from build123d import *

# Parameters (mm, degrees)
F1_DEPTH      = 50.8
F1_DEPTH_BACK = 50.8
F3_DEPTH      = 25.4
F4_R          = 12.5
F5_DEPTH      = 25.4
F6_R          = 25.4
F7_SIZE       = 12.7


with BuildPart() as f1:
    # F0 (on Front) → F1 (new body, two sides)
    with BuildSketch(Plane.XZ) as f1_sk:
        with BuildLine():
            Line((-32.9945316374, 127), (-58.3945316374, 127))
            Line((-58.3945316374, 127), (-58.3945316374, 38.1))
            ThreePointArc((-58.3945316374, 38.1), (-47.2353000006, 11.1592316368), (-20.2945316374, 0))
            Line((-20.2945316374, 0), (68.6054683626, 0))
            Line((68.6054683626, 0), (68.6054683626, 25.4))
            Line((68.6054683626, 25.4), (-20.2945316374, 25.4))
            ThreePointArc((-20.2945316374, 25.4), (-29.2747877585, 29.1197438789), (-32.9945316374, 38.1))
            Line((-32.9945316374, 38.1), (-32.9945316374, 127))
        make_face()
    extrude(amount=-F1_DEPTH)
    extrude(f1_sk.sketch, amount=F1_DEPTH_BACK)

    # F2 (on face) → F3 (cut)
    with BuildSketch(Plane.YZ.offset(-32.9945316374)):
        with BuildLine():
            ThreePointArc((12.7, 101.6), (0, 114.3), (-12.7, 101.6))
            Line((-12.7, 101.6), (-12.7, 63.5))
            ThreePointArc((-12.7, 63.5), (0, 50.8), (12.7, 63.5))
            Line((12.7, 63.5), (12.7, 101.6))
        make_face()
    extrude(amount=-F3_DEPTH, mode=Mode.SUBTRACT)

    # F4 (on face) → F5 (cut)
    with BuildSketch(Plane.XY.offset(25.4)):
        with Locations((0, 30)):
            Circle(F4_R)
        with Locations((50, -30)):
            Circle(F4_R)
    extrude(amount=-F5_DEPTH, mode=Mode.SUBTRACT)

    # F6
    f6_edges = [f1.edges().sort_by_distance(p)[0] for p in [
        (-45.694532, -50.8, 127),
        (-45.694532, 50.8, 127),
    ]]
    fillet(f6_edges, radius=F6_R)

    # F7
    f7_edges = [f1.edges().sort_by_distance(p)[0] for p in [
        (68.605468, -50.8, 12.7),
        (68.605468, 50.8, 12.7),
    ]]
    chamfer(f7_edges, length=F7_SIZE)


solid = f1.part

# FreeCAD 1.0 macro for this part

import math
import FreeCAD as App
import Part
import Sketcher
from FreeCAD import Vector
Q = App.Units.Quantity


def edges_at(feature, points):
    """Names of the edges that pass closest to the given points."""
    edges = feature.Shape.Edges
    near = lambda p: min(range(len(edges)), key=lambda i: edges[i].distToShape(Part.Vertex(*p))[0])
    return sorted({f"Edge{near(p) + 1}" for p in points})

doc = App.newDocument("Part")
params = doc.addObject("Spreadsheet::Sheet", "Params")
for row, (alias, value) in enumerate([
    ("sketch1_radius", "1.5 in"),
    ("sketch1_radius2", "0.5 in"),
    ("sketch1_width", "3.5 in"),
    ("pad1_length", "2 in"),
    ("pad1_length2", "2 in"),
    ("sketch2_radius", "0.5 in"),
    ("sketch2_height", "1.5 in"),
    ("pocket1_length", "1 in"),
    ("pocket2_length", "1 in"),
    ("fillet_radius", "1 in"),
    ("chamfer_size", "0.5 in"),
], start=1):
    params.set(f"A{row}", alias)
    params.set(f"B{row}", "=" + value)
    params.setAlias(f"B{row}", alias)

body = doc.addObject("PartDesign::Body", "Body")

# Sketch on XZ plane
sketch1 = doc.addObject("Sketcher::SketchObject", "Sketch")
body.addObject(sketch1)
sketch1.AttachmentSupport = (doc.XZ_Plane, [""])
sketch1.MapMode = "FlatFace"
sketch1.addGeometry(Part.LineSegment(Vector(-33, 127, 0), Vector(-58, 127, 0)), False)
sketch1.addGeometry(Part.LineSegment(Vector(-58, 127, 0), Vector(-58, 38, 0)), False)
sketch1.addGeometry(Part.ArcOfCircle(Part.Circle(Vector(-20, 38, 0), Vector(0, 0, 1), 38), math.radians(180), math.radians(270)), False)
sketch1.addGeometry(Part.LineSegment(Vector(-20, 0, 0), Vector(69, 0, 0)), False)
sketch1.addGeometry(Part.LineSegment(Vector(69, 0, 0), Vector(69, 25, 0)), False)
sketch1.addGeometry(Part.LineSegment(Vector(69, 25, 0), Vector(-20, 25, 0)), False)
sketch1.addGeometry(Part.ArcOfCircle(Part.Circle(Vector(-20, 38, 0), Vector(0, 0, 1), 13), math.radians(180), math.radians(270)), False)
sketch1.addGeometry(Part.LineSegment(Vector(-33, 38, 0), Vector(-33, 127, 0)), False)
sketch1.addConstraint(Sketcher.Constraint("Coincident", 0, 2, 1, 1))
sketch1.addConstraint(Sketcher.Constraint("Tangent", 1, 2, 2, 1))
sketch1.addConstraint(Sketcher.Constraint("Tangent", 2, 2, 3, 1))
sketch1.addConstraint(Sketcher.Constraint("Coincident", 3, 2, 4, 1))
sketch1.addConstraint(Sketcher.Constraint("Coincident", 4, 2, 5, 1))
sketch1.addConstraint(Sketcher.Constraint("Tangent", 5, 2, 6, 2))
sketch1.addConstraint(Sketcher.Constraint("Tangent", 6, 1, 7, 1))
sketch1.addConstraint(Sketcher.Constraint("Coincident", 7, 2, 0, 1))
sketch1.addConstraint(Sketcher.Constraint("Horizontal", 0))
sketch1.addConstraint(Sketcher.Constraint("Vertical", 1))
sketch1.addConstraint(Sketcher.Constraint("Horizontal", 3))
sketch1.addConstraint(Sketcher.Constraint("Vertical", 4))
sketch1.addConstraint(Sketcher.Constraint("Horizontal", 5))
sketch1.addConstraint(Sketcher.Constraint("Vertical", 7))
sketch1.addConstraint(Sketcher.Constraint("Coincident", 6, 3, 2, 3))
sketch1.addConstraint(Sketcher.Constraint("PointOnObject", 2, 2, -1))
sketch1.addConstraint(Sketcher.Constraint("Equal", 5, 1))
sketch1.addConstraint(Sketcher.Constraint("Radius", 2, Q("1.5 in")))
sketch1.addConstraint(Sketcher.Constraint("Radius", 6, Q("0.5 in")))
sketch1.addConstraint(Sketcher.Constraint("DistanceX", 3, 1, 3, 2, Q("3.5 in")))
sketch1.addConstraint(Sketcher.Constraint("DistanceX", 2, 3, -1, 1, 20.294532))
sketch1.setExpression("Constraints[17]", "Params.sketch1_radius")
sketch1.setExpression("Constraints[18]", "Params.sketch1_radius2")
sketch1.setExpression("Constraints[19]", "Params.sketch1_width")
pad1 = doc.addObject("PartDesign::Pad", "Pad")
body.addObject(pad1)
pad1.Profile = sketch1
pad1.Type = "TwoLengths"
pad1.setExpression("Length", "Params.pad1_length")
pad1.setExpression("Length2", "Params.pad1_length2")
pad1.Reversed = True

# Sketch on YZ plane
sketch2 = doc.addObject("Sketcher::SketchObject", "Sketch001")
body.addObject(sketch2)
sketch2.AttachmentSupport = (doc.YZ_Plane, [""])
sketch2.MapMode = "FlatFace"
sketch2.AttachmentOffset = App.Placement(Vector(0, 0, -32.994532), App.Rotation())
sketch2.addGeometry(Part.ArcOfCircle(Part.Circle(Vector(0, 102, 0), Vector(0, 0, 1), 13), math.radians(0), math.radians(180)), False)
sketch2.addGeometry(Part.LineSegment(Vector(-13, 102, 0), Vector(-13, 64, 0)), False)
sketch2.addGeometry(Part.ArcOfCircle(Part.Circle(Vector(0, 64, 0), Vector(0, 0, 1), 13), math.radians(180), math.radians(360)), False)
sketch2.addGeometry(Part.LineSegment(Vector(13, 64, 0), Vector(13, 102, 0)), False)
sketch2.addConstraint(Sketcher.Constraint("Tangent", 0, 2, 1, 1))
sketch2.addConstraint(Sketcher.Constraint("Tangent", 1, 2, 2, 1))
sketch2.addConstraint(Sketcher.Constraint("Tangent", 2, 2, 3, 1))
sketch2.addConstraint(Sketcher.Constraint("Tangent", 3, 2, 0, 1))
sketch2.addConstraint(Sketcher.Constraint("Vertical", 1))
sketch2.addConstraint(Sketcher.Constraint("Vertical", 3))
sketch2.addConstraint(Sketcher.Constraint("PointOnObject", 0, 3, -2))
sketch2.addConstraint(Sketcher.Constraint("Radius", 0, Q("0.5 in")))
sketch2.addConstraint(Sketcher.Constraint("DistanceY", 1, 2, 1, 1, Q("1.5 in")))
sketch2.addConstraint(Sketcher.Constraint("DistanceY", -1, 1, 0, 3, Q("4 in")))
sketch2.setExpression("Constraints[7]", "Params.sketch2_radius")
sketch2.setExpression("Constraints[8]", "Params.sketch2_height")
pocket1 = doc.addObject("PartDesign::Pocket", "Pocket")
body.addObject(pocket1)
pocket1.Profile = sketch2
pocket1.setExpression("Length", "Params.pocket1_length")

# Sketch on XY plane
sketch3 = doc.addObject("Sketcher::SketchObject", "Sketch002")
body.addObject(sketch3)
sketch3.AttachmentSupport = (doc.XY_Plane, [""])
sketch3.MapMode = "FlatFace"
sketch3.AttachmentOffset = App.Placement(Vector(0, 0, 1 * 25.4), App.Rotation())
sketch3.addGeometry(Part.Circle(Vector(0, 30, 0), Vector(0, 0, 1), 12), False)
sketch3.addGeometry(Part.Circle(Vector(50, -30, 0), Vector(0, 0, 1), 12), False)
sketch3.addConstraint(Sketcher.Constraint("Equal", 0, 1))
sketch3.addConstraint(Sketcher.Constraint("PointOnObject", 0, 3, -2))
sketch3.addConstraint(Sketcher.Constraint("Diameter", 0, 25.0))
sketch3.addConstraint(Sketcher.Constraint("DistanceY", -1, 1, 0, 3, 30.0))
sketch3.addConstraint(Sketcher.Constraint("DistanceX", -1, 1, 1, 3, 50.0))
sketch3.addConstraint(Sketcher.Constraint("DistanceY", 1, 3, -1, 1, 30.0))
pocket2 = doc.addObject("PartDesign::Pocket", "Pocket001")
body.addObject(pocket2)
pocket2.Profile = sketch3
pocket2.setExpression("Length", "Params.pocket2_length")
doc.recompute()

fillet = doc.addObject("PartDesign::Fillet", "Fillet")
body.addObject(fillet)
fillet.Base = (pocket2, edges_at(pocket2, [(-45.695, -50.8, 127), (-45.695, 50.8, 127)]))
fillet.setExpression("Radius", "Params.fillet_radius")
doc.recompute()

chamfer = doc.addObject("PartDesign::Chamfer", "Chamfer")
body.addObject(chamfer)
chamfer.Base = (fillet, edges_at(fillet, [(68.605, -50.8, 12.7), (68.605, 50.8, 12.7)]))
chamfer.setExpression("Size", "Params.chamfer_size")

doc.recompute()
